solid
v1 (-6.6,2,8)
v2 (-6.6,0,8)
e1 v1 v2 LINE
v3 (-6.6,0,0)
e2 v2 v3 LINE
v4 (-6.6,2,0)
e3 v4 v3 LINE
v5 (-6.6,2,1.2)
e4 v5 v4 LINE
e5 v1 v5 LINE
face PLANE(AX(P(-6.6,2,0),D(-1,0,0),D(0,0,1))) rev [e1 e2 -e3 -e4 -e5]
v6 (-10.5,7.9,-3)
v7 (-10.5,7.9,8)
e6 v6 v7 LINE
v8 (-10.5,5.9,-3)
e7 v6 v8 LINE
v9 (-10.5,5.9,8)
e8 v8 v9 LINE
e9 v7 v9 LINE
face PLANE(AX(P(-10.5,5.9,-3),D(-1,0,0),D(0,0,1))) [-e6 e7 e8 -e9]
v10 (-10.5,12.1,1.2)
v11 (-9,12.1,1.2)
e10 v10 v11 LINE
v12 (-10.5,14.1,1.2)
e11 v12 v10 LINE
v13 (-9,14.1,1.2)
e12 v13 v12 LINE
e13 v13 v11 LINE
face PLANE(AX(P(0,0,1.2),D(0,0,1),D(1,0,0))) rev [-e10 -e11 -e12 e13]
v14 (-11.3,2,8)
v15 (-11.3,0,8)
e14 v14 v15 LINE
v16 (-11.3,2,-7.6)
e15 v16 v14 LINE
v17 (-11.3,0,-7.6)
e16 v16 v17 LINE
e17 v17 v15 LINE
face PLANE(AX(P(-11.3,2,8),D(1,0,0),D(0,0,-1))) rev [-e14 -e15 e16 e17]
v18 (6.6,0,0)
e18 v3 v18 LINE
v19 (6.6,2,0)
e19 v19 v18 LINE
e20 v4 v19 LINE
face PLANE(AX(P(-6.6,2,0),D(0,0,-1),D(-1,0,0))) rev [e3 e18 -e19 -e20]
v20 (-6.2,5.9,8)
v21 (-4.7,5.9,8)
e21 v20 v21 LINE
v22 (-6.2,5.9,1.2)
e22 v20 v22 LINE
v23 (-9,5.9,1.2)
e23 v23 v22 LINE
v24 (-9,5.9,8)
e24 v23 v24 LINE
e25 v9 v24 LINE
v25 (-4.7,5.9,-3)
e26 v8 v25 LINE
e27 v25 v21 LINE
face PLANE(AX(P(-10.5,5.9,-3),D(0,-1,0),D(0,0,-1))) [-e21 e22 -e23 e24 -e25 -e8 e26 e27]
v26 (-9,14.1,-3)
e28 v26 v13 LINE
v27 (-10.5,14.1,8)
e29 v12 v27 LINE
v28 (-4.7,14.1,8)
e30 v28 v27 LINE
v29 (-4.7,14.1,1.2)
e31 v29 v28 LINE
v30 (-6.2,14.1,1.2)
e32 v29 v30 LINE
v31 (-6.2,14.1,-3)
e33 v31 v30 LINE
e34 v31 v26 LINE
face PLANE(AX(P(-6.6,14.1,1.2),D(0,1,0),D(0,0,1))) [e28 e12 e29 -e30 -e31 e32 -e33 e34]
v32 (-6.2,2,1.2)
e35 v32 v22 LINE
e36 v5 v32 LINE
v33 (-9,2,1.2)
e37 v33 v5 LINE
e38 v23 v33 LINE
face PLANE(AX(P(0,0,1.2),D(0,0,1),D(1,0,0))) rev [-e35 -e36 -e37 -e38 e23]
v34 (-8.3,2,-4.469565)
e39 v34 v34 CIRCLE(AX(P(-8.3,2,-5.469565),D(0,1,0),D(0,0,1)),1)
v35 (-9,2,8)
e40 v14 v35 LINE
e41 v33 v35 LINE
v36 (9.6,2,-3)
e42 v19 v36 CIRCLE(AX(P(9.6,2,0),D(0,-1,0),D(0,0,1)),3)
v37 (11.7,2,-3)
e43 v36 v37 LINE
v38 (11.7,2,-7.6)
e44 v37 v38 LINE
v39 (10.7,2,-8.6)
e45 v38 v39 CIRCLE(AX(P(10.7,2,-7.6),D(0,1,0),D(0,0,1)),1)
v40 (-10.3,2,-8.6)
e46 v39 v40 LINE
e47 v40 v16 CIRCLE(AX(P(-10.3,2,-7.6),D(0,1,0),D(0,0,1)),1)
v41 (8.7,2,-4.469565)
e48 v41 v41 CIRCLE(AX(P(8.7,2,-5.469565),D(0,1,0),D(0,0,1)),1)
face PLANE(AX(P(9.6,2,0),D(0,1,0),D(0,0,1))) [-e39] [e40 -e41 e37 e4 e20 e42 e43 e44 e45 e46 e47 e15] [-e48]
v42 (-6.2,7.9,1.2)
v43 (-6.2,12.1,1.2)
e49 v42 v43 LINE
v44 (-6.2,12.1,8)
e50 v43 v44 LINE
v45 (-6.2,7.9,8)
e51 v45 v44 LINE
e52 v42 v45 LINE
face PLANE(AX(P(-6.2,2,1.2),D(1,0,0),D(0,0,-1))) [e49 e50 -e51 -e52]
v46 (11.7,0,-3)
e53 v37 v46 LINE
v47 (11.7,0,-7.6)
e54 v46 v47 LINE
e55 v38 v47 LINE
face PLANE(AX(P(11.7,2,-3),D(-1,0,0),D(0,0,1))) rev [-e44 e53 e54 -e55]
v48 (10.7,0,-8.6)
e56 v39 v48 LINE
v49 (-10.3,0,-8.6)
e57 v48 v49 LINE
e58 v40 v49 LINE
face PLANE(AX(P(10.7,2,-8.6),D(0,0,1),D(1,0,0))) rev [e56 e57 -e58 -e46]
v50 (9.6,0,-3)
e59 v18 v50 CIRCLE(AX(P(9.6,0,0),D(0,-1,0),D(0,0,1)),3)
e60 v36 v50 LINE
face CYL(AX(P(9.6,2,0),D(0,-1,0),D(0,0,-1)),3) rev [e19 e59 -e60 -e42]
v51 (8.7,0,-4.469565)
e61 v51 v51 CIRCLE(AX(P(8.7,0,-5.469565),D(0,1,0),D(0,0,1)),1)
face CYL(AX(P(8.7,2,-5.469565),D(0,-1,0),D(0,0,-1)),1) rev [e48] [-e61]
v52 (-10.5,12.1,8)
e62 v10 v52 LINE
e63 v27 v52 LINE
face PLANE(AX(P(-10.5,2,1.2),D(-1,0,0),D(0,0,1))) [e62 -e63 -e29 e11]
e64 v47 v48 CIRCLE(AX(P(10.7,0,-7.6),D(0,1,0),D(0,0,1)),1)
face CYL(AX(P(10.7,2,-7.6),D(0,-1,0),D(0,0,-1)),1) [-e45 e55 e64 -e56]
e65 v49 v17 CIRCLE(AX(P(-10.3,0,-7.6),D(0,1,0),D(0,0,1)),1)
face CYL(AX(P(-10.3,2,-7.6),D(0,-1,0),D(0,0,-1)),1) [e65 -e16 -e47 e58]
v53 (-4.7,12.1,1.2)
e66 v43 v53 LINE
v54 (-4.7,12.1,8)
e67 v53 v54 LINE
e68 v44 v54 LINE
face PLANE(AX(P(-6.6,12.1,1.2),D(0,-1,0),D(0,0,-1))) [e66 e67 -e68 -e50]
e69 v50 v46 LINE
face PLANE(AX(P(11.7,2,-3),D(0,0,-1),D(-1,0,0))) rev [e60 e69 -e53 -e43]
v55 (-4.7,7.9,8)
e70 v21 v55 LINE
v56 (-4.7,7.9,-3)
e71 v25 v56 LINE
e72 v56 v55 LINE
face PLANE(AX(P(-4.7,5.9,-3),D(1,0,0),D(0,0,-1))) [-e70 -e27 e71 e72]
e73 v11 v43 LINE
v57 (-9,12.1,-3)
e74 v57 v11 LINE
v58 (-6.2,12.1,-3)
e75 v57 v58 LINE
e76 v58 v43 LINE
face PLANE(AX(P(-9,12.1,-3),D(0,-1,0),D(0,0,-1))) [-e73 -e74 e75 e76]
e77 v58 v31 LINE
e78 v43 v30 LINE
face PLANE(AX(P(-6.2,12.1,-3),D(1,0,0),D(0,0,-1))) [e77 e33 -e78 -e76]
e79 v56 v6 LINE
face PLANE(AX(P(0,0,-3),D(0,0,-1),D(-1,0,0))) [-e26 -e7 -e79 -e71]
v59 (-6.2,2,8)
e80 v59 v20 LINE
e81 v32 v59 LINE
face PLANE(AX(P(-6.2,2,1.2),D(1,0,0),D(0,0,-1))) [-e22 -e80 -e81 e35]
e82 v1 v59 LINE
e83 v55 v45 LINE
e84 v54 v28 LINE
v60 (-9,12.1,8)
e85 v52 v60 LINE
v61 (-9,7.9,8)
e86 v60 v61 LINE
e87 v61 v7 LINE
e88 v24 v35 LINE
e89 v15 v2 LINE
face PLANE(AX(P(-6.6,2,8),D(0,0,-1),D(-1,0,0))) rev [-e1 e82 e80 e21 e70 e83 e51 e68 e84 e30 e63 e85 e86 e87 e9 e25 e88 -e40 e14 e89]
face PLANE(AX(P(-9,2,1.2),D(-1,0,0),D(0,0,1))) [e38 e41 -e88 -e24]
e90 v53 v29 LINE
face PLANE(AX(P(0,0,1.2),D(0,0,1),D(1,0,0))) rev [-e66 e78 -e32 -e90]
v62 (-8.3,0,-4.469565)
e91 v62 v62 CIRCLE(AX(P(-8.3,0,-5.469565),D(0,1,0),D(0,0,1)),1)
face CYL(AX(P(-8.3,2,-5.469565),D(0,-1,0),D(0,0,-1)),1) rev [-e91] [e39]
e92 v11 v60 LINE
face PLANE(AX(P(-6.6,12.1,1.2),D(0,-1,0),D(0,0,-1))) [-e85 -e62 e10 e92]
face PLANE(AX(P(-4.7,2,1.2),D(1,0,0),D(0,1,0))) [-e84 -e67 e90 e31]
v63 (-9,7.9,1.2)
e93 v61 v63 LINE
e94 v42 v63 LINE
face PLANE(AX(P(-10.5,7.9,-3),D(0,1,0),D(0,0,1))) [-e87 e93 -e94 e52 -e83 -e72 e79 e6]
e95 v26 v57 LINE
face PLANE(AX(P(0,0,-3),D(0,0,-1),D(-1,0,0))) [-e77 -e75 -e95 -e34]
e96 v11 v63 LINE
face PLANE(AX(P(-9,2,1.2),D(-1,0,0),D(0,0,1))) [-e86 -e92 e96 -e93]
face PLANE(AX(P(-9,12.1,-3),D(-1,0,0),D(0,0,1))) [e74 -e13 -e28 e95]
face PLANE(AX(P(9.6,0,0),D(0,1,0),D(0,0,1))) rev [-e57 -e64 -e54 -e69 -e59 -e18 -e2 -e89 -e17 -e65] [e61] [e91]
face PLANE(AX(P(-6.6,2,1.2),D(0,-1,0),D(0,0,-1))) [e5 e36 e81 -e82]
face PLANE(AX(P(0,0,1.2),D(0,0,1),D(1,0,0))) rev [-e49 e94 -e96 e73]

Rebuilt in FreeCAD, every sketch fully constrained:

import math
import FreeCAD as App
import Part
import Sketcher

doc = App.newDocument("Part")
params = doc.addObject("Spreadsheet::Sheet", "Params")
for row, (alias, value) in enumerate([
    ("sketch1_diameter", "2 mm"),
    ("sketch1_radius", "3 mm"),
    ("sketch1_width", "21 mm"),
    ("sketch1_height", "8 mm"),
    ("sketch1_width2", "4.7 mm"),
    ("pad1_length", "2 mm"),
    ("sketch2_height", "2 mm"),
    ("sketch2_width", "2.8 mm"),
    ("sketch2_width2", "1.5 mm"),
    ("sketch2_height2", "10.1 mm"),
    ("pad2_length", "6.8 mm"),
    ("sketch3_height", "2 mm"),
    ("sketch3_width", "2.8 mm"),
    ("sketch3_width2", "5.8 mm"),
    ("pad3_length", "11 mm"),
], start=1):
    params.set(f"A{row}", alias)
    params.set(f"B{row}", "=" + value)
    params.setAlias(f"B{row}", alias)

body = doc.addObject("PartDesign::Body", "Body")

# Sketch on XZ plane
sketch1 = doc.addObject("Sketcher::SketchObject", "Sketch")
body.addObject(sketch1)
sketch1.AttachmentSupport = (doc.XZ_Plane, [""])
sketch1.MapMode = "FlatFace"
sketch1.addGeometry(Part.LineSegment(App.Vector(11.7, -3, 0), App.Vector(11.7, -7.6, 0)), False)
sketch1.addGeometry(Part.ArcOfCircle(Part.Circle(App.Vector(10.7, -7.6, 0), App.Vector(0, 0, 1), 1), math.radians(-90), math.radians(0)), False)
sketch1.addGeometry(Part.LineSegment(App.Vector(10.7, -8.6, 0), App.Vector(-10.3, -8.6, 0)), False)
sketch1.addGeometry(Part.ArcOfCircle(Part.Circle(App.Vector(-10.3, -7.6, 0), App.Vector(0, 0, 1), 1), math.radians(-180), math.radians(-90)), False)
sketch1.addGeometry(Part.LineSegment(App.Vector(-11.3, -7.6, 0), App.Vector(-11.3, 8, 0)), False)
sketch1.addGeometry(Part.LineSegment(App.Vector(-11.3, 8, 0), App.Vector(-6.6, 8, 0)), False)
sketch1.addGeometry(Part.LineSegment(App.Vector(-6.6, 8, 0), App.Vector(-6.6, 0, 0)), False)
sketch1.addGeometry(Part.LineSegment(App.Vector(-6.6, 0, 0), App.Vector(6.6, 0, 0)), False)
sketch1.addGeometry(Part.ArcOfCircle(Part.Circle(App.Vector(9.6, 0, 0), App.Vector(0, 0, 1), 3), math.radians(180), math.radians(270)), False)
sketch1.addGeometry(Part.LineSegment(App.Vector(9.6, -3, 0), App.Vector(11.7, -3, 0)), False)
sketch1.addGeometry(Part.Circle(App.Vector(-8.3, -5.5, 0), App.Vector(0, 0, 1), 1), False)
sketch1.addGeometry(Part.Circle(App.Vector(8.7, -5.5, 0), App.Vector(0, 0, 1), 1), False)
sketch1.addConstraint(Sketcher.Constraint("Tangent", 0, 2, 1, 2))
sketch1.addConstraint(Sketcher.Constraint("Tangent", 1, 1, 2, 1))
sketch1.addConstraint(Sketcher.Constraint("Tangent", 2, 2, 3, 2))
sketch1.addConstraint(Sketcher.Constraint("Tangent", 3, 1, 4, 1))
sketch1.addConstraint(Sketcher.Constraint("Coincident", 4, 2, 5, 1))
sketch1.addConstraint(Sketcher.Constraint("Coincident", 5, 2, 6, 1))
sketch1.addConstraint(Sketcher.Constraint("Coincident", 6, 2, 7, 1))
sketch1.addConstraint(Sketcher.Constraint("Coincident", 7, 2, 8, 1))
sketch1.addConstraint(Sketcher.Constraint("Tangent", 8, 2, 9, 1))
sketch1.addConstraint(Sketcher.Constraint("Coincident", 9, 2, 0, 1))
sketch1.addConstraint(Sketcher.Constraint("Vertical", 0))
sketch1.addConstraint(Sketcher.Constraint("Horizontal", 2))
sketch1.addConstraint(Sketcher.Constraint("Vertical", 4))
sketch1.addConstraint(Sketcher.Constraint("Horizontal", 5))
sketch1.addConstraint(Sketcher.Constraint("Vertical", 6))
sketch1.addConstraint(Sketcher.Constraint("Horizontal", 7))
sketch1.addConstraint(Sketcher.Constraint("Horizontal", 9))
sketch1.addConstraint(Sketcher.Constraint("Equal", 1, 3))
sketch1.addConstraint(Sketcher.Constraint("Equal", 3, 10))
sketch1.addConstraint(Sketcher.Constraint("Equal", 10, 11))
sketch1.addConstraint(Sketcher.Constraint("Symmetric", 6, 2, 7, 2, -1, 1))
sketch1.addConstraint(Sketcher.Constraint("PointOnObject", 8, 3, -1))
sketch1.addConstraint(Sketcher.Constraint("Horizontal", 10, 3, 11, 3))
sketch1.addConstraint(Sketcher.Constraint("Diameter", 10, 2.0))
sketch1.addConstraint(Sketcher.Constraint("Radius", 8, 3.0))
sketch1.addConstraint(Sketcher.Constraint("DistanceX", 2, 2, 2, 1, 21.0))
sketch1.addConstraint(Sketcher.Constraint("DistanceY", 6, 2, 6, 1, 8.0))
sketch1.addConstraint(Sketcher.Constraint("DistanceX", 5, 1, 5, 2, 4.7))
sketch1.addConstraint(Sketcher.Constraint("DistanceX", 7, 1, 7, 2, 13.2))
sketch1.addConstraint(Sketcher.Constraint("DistanceY", 0, 2, 0, 1, 4.6))
sketch1.addConstraint(Sketcher.Constraint("DistanceX", 3, 3, 10, 3, 2.0))
sketch1.addConstraint(Sketcher.Constraint("DistanceX", 11, 3, 1, 3, 2.0))
sketch1.addConstraint(Sketcher.Constraint("DistanceY", 10, 3, -1, 1, 5.469565))
sketch1.setExpression("Constraints[23]", "Params.sketch1_diameter")
sketch1.setExpression("Constraints[24]", "Params.sketch1_radius")
sketch1.setExpression("Constraints[25]", "Params.sketch1_width")
sketch1.setExpression("Constraints[26]", "Params.sketch1_height")
sketch1.setExpression("Constraints[27]", "Params.sketch1_width2")
pad1 = doc.addObject("PartDesign::Pad", "Pad")
body.addObject(pad1)
pad1.Profile = sketch1
pad1.setExpression("Length", "Params.pad1_length")
pad1.Reversed = True

# Sketch on XY plane
sketch2 = doc.addObject("Sketcher::SketchObject", "Sketch001")
body.addObject(sketch2)
sketch2.AttachmentSupport = (doc.XY_Plane, [""])
sketch2.MapMode = "FlatFace"
sketch2.AttachmentOffset = App.Placement(App.Vector(0, 0, 8), App.Rotation())
sketch2.addGeometry(Part.LineSegment(App.Vector(-9, 12.1, 0), App.Vector(-9, 2, 0)), False)
sketch2.addGeometry(Part.LineSegment(App.Vector(-9, 2, 0), App.Vector(-6.2, 2, 0)), False)
sketch2.addGeometry(Part.LineSegment(App.Vector(-6.2, 2, 0), App.Vector(-6.2, 12.1, 0)), False)
sketch2.addGeometry(Part.LineSegment(App.Vector(-6.2, 12.1, 0), App.Vector(-4.7, 12.1, 0)), False)
sketch2.addGeometry(Part.LineSegment(App.Vector(-4.7, 12.1, 0), App.Vector(-4.7, 14.1, 0)), False)
sketch2.addGeometry(Part.LineSegment(App.Vector(-4.7, 14.1, 0), App.Vector(-10.5, 14.1, 0)), False)
sketch2.addGeometry(Part.LineSegment(App.Vector(-10.5, 14.1, 0), App.Vector(-10.5, 12.1, 0)), False)
sketch2.addGeometry(Part.LineSegment(App.Vector(-10.5, 12.1, 0), App.Vector(-9, 12.1, 0)), False)
sketch2.addConstraint(Sketcher.Constraint("Coincident", 0, 2, 1, 1))
sketch2.addConstraint(Sketcher.Constraint("Coincident", 1, 2, 2, 1))
sketch2.addConstraint(Sketcher.Constraint("Coincident", 2, 2, 3, 1))
sketch2.addConstraint(Sketcher.Constraint("Coincident", 3, 2, 4, 1))
sketch2.addConstraint(Sketcher.Constraint("Coincident", 4, 2, 5, 1))
sketch2.addConstraint(Sketcher.Constraint("Coincident", 5, 2, 6, 1))
sketch2.addConstraint(Sketcher.Constraint("Coincident", 6, 2, 7, 1))
sketch2.addConstraint(Sketcher.Constraint("Coincident", 7, 2, 0, 1))
sketch2.addConstraint(Sketcher.Constraint("Vertical", 0))
sketch2.addConstraint(Sketcher.Constraint("Horizontal", 1))
sketch2.addConstraint(Sketcher.Constraint("Vertical", 2))
sketch2.addConstraint(Sketcher.Constraint("Horizontal", 3))
sketch2.addConstraint(Sketcher.Constraint("Vertical", 4))
sketch2.addConstraint(Sketcher.Constraint("Horizontal", 5))
sketch2.addConstraint(Sketcher.Constraint("Vertical", 6))
sketch2.addConstraint(Sketcher.Constraint("Horizontal", 7))
sketch2.addConstraint(Sketcher.Constraint("Horizontal", 3, 2, 6, 2))
sketch2.addConstraint(Sketcher.Constraint("Equal", 3, 7))
sketch2.addConstraint(Sketcher.Constraint("DistanceY", 4, 1, 4, 2, 2.0))
sketch2.addConstraint(Sketcher.Constraint("DistanceX", 1, 1, 1, 2, 2.8))
sketch2.addConstraint(Sketcher.Constraint("DistanceX", 3, 1, 3, 2, 1.5))
sketch2.addConstraint(Sketcher.Constraint("DistanceY", 0, 2, 0, 1, 10.1))
sketch2.addConstraint(Sketcher.Constraint("DistanceX", 0, 2, -1, 1, 9.0))
sketch2.addConstraint(Sketcher.Constraint("DistanceY", -1, 1, 0, 2, 2.0))
sketch2.setExpression("Constraints[18]", "Params.sketch2_height")
sketch2.setExpression("Constraints[19]", "Params.sketch2_width")
sketch2.setExpression("Constraints[20]", "Params.sketch2_width2")
sketch2.setExpression("Constraints[21]", "Params.sketch2_height2")
pad2 = doc.addObject("PartDesign::Pad", "Pad001")
body.addObject(pad2)
pad2.Profile = sketch2
pad2.setExpression("Length", "Params.pad2_length")
pad2.Reversed = True

# Sketch on XY plane
sketch3 = doc.addObject("Sketcher::SketchObject", "Sketch002")
body.addObject(sketch3)
sketch3.AttachmentSupport = (doc.XY_Plane, [""])
sketch3.MapMode = "FlatFace"
sketch3.AttachmentOffset = App.Placement(App.Vector(0, 0, 8), App.Rotation())
sketch3.addGeometry(Part.LineSegment(App.Vector(-9, 14.1, 0), App.Vector(-9, 12.1, 0)), False)
sketch3.addGeometry(Part.LineSegment(App.Vector(-9, 12.1, 0), App.Vector(-6.2, 12.1, 0)), False)
sketch3.addGeometry(Part.LineSegment(App.Vector(-6.2, 12.1, 0), App.Vector(-6.2, 14.1, 0)), False)
sketch3.addGeometry(Part.LineSegment(App.Vector(-6.2, 14.1, 0), App.Vector(-9, 14.1, 0)), False)
sketch3.addGeometry(Part.LineSegment(App.Vector(-10.5, 7.9, 0), App.Vector(-10.5, 5.9, 0)), False)
sketch3.addGeometry(Part.LineSegment(App.Vector(-10.5, 5.9, 0), App.Vector(-4.7, 5.9, 0)), False)
sketch3.addGeometry(Part.LineSegment(App.Vector(-4.7, 5.9, 0), App.Vector(-4.7, 7.9, 0)), False)
sketch3.addGeometry(Part.LineSegment(App.Vector(-4.7, 7.9, 0), App.Vector(-10.5, 7.9, 0)), False)
sketch3.addConstraint(Sketcher.Constraint("Coincident", 0, 2, 1, 1))
sketch3.addConstraint(Sketcher.Constraint("Coincident", 1, 2, 2, 1))
sketch3.addConstraint(Sketcher.Constraint("Coincident", 2, 2, 3, 1))
sketch3.addConstraint(Sketcher.Constraint("Coincident", 3, 2, 0, 1))
sketch3.addConstraint(Sketcher.Constraint("Coincident", 4, 2, 5, 1))
sketch3.addConstraint(Sketcher.Constraint("Coincident", 5, 2, 6, 1))
sketch3.addConstraint(Sketcher.Constraint("Coincident", 6, 2, 7, 1))
sketch3.addConstraint(Sketcher.Constraint("Coincident", 7, 2, 4, 1))
sketch3.addConstraint(Sketcher.Constraint("Vertical", 0))
sketch3.addConstraint(Sketcher.Constraint("Horizontal", 1))
sketch3.addConstraint(Sketcher.Constraint("Vertical", 2))
sketch3.addConstraint(Sketcher.Constraint("Horizontal", 3))
sketch3.addConstraint(Sketcher.Constraint("Vertical", 4))
sketch3.addConstraint(Sketcher.Constraint("Horizontal", 5))
sketch3.addConstraint(Sketcher.Constraint("Vertical", 6))
sketch3.addConstraint(Sketcher.Constraint("Horizontal", 7))
sketch3.addConstraint(Sketcher.Constraint("Equal", 2, 4))
sketch3.addConstraint(Sketcher.Constraint("DistanceY", 0, 2, 0, 1, 2.0))
sketch3.addConstraint(Sketcher.Constraint("DistanceX", 1, 1, 1, 2, 2.8))
sketch3.addConstraint(Sketcher.Constraint("DistanceX", 5, 1, 5, 2, 5.8))
sketch3.addConstraint(Sketcher.Constraint("DistanceX", 0, 2, -1, 1, 9.0))
sketch3.addConstraint(Sketcher.Constraint("DistanceY", -1, 1, 0, 2, 12.1))
sketch3.addConstraint(Sketcher.Constraint("DistanceX", 4, 2, -1, 1, 10.5))
sketch3.addConstraint(Sketcher.Constraint("DistanceY", -1, 1, 4, 2, 5.9))
sketch3.setExpression("Constraints[17]", "Params.sketch3_height")
sketch3.setExpression("Constraints[18]", "Params.sketch3_width")
sketch3.setExpression("Constraints[19]", "Params.sketch3_width2")
pad3 = doc.addObject("PartDesign::Pad", "Pad002")
body.addObject(pad3)
pad3.Profile = sketch3
pad3.setExpression("Length", "Params.pad3_length")
pad3.Reversed = True

doc.recompute()
